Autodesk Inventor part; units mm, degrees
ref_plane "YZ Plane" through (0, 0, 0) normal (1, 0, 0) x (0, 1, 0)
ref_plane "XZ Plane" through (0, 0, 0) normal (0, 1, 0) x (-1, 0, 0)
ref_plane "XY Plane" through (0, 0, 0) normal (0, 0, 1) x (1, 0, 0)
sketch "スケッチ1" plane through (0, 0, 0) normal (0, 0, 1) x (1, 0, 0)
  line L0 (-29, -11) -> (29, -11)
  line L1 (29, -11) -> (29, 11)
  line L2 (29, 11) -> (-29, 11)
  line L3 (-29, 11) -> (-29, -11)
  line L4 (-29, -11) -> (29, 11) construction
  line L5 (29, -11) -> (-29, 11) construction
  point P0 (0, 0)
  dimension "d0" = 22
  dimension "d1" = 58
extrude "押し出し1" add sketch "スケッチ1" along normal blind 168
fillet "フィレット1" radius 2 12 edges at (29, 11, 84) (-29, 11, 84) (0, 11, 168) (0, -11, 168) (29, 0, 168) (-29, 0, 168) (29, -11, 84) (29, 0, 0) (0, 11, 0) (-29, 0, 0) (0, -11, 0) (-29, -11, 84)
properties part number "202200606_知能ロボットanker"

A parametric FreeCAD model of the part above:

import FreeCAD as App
import Part
import Sketcher
from FreeCAD import Vector


def add_polygon(sketch, points):
    """Adds a closed chain of lines whose ends are joined by coincident constraints."""
    first, n = sketch.GeometryCount, len(points)
    for a, b in zip(points, points[1:] + points[:1]):
        sketch.addGeometry(Part.LineSegment(App.Vector(*a, 0), App.Vector(*b, 0)), False)
    for i in range(n):
        sketch.addConstraint(Sketcher.Constraint("Coincident", first + i, 2, first + (i + 1) % n, 1))

doc = App.newDocument("Part")
body = doc.addObject("PartDesign::Body", "Body")

# Sketch on XY plane
sketch1 = body.newObject("Sketcher::SketchObject", "Sketch")
sketch1.AttachmentSupport = (doc.getObject("XY_Plane"), [""])
sketch1.MapMode = "FlatFace"
add_polygon(sketch1, [(-29, 11), (-29, -11), (29, -11), (29, 11)])  # lines 0-3
sketch1.addConstraint([
    Sketcher.Constraint("Vertical", 0),
    Sketcher.Constraint("Horizontal", 1),
    Sketcher.Constraint("Vertical", 2),
    Sketcher.Constraint("Horizontal", 3),
    Sketcher.Constraint("Symmetric", 0, 2, 2, 2, -1, 1),
    Sketcher.Constraint("DistanceX", 1, 1, 1, 2, 58.0),
    Sketcher.Constraint("DistanceY", 0, 2, 0, 1, 22.0),
])
pad1 = body.newObject("PartDesign::Pad", "Pad")
pad1.Profile = sketch1
pad1.Length = 168
doc.recompute()

fillet = body.newObject("PartDesign::Fillet", "Fillet")
fillet.Base = (pad1, ["Edge1"])
fillet.UseAllEdges = True
fillet.Radius = 2

doc.recompute()
